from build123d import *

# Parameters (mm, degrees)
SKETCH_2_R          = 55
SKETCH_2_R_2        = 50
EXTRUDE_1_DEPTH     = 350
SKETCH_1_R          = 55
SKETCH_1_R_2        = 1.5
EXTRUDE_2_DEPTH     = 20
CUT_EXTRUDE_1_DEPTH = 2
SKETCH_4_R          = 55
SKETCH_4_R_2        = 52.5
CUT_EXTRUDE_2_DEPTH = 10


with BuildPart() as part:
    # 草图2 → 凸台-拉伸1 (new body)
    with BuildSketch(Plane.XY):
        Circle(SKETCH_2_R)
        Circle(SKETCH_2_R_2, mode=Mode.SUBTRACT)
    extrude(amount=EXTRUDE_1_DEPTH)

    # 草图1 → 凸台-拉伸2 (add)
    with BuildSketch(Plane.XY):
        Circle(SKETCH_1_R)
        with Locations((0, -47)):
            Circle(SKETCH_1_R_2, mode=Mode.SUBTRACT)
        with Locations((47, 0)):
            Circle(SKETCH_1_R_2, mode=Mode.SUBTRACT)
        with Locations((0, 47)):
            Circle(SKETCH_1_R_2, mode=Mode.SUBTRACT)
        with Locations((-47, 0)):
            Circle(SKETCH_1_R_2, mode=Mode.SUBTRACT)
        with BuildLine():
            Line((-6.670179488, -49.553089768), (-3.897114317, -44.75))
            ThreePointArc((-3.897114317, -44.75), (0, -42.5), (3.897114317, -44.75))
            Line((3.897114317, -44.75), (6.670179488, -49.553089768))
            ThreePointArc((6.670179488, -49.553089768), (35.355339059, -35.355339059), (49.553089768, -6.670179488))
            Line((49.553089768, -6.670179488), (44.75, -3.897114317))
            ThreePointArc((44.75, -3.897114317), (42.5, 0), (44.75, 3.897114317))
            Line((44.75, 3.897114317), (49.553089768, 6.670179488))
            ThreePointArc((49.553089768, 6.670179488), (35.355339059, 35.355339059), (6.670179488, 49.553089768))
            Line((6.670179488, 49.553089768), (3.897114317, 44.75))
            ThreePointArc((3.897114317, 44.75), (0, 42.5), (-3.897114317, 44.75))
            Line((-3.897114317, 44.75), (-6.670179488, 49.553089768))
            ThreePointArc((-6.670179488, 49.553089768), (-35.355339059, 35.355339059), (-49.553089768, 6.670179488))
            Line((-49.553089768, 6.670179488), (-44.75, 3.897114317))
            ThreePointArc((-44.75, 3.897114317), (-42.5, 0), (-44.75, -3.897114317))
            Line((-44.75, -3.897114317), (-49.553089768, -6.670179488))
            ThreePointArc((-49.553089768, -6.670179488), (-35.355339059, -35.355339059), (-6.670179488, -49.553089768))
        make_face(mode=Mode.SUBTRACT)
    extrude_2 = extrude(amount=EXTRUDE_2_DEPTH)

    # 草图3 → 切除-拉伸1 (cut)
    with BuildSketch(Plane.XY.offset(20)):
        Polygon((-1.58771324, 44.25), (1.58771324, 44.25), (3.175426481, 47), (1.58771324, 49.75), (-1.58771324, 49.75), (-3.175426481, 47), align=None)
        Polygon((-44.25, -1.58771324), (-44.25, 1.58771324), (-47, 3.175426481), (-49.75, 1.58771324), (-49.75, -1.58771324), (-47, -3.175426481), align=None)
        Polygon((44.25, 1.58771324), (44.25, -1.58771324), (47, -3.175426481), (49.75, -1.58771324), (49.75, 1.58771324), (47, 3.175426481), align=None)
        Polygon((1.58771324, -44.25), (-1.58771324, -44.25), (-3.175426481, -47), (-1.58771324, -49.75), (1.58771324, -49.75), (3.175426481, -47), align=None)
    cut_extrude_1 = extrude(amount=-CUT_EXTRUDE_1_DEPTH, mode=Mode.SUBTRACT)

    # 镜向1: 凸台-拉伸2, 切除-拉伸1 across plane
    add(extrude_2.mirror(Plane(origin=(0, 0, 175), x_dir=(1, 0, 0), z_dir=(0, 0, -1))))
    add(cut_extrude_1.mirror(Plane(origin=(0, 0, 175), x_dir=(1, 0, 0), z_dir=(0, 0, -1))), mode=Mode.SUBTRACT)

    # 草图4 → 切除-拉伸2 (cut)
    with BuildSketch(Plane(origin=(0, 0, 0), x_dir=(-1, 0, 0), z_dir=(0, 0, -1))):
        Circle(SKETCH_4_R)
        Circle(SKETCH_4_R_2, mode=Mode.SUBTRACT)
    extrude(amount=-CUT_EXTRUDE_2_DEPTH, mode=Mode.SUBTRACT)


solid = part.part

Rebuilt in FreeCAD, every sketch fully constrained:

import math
import FreeCAD as App
import Part
import Sketcher
Q = App.Units.Quantity


def add_polygon(sketch, points):
    """Adds a closed chain of lines whose ends are joined by coincident constraints."""
    first, n = sketch.GeometryCount, len(points)
    for a, b in zip(points, points[1:] + points[:1]):
        sketch.addGeometry(Part.LineSegment(App.Vector(*a, 0), App.Vector(*b, 0)), False)
    for i in range(n):
        sketch.addConstraint(Sketcher.Constraint("Coincident", first + i, 2, first + (i + 1) % n, 1))

doc = App.newDocument("Part")
params = doc.addObject("Spreadsheet::Sheet", "Params")
for row, (alias, value) in enumerate([
    ("sketch1_diameter", "110 mm"),
    ("sketch1_diameter2", "100 mm"),
    ("pad1_length", "350 mm"),
    ("sketch2_diameter", "110 mm"),
    ("sketch2_diameter2", "3 mm"),
    ("sketch2_radius", "50 mm"),
    ("sketch2_radius2", "4.5 mm"),
    ("pad2_length", "20 mm"),
    ("pocket1_length", "2 mm"),
    ("sketch4_diameter", "110 mm"),
    ("sketch4_diameter2", "105 mm"),
    ("pocket2_length", "10 mm"),
], start=1):
    params.set(f"A{row}", alias)
    params.set(f"B{row}", "=" + value)
    params.setAlias(f"B{row}", alias)

body = doc.addObject("PartDesign::Body", "Body")

sketch1 = body.newObject("Sketcher::SketchObject", "Sketch")
sketch1.AttachmentSupport = (doc.getObject("XY_Plane"), [""])
sketch1.MapMode = "FlatFace"
sketch1.addGeometry(Part.Circle(App.Vector(0, 0, 0), App.Vector(0, 0, 1), 55), False)
sketch1.addGeometry(Part.Circle(App.Vector(0, 0, 0), App.Vector(0, 0, 1), 50), False)
sketch1.addConstraint(Sketcher.Constraint("Coincident", 0, 3, -1, 1))
sketch1.addConstraint(Sketcher.Constraint("Coincident", 1, 3, -1, 1))
sketch1.addConstraint(Sketcher.Constraint("Diameter", 0, Q("110 mm")))
sketch1.addConstraint(Sketcher.Constraint("Diameter", 1, Q("100 mm")))
sketch1.setExpression("Constraints[2]", "Params.sketch1_diameter")
sketch1.setExpression("Constraints[3]", "Params.sketch1_diameter2")
pad1 = body.newObject("PartDesign::Pad", "Pad")
pad1.Profile = sketch1
pad1.setExpression("Length", "Params.pad1_length")

sketch2 = body.newObject("Sketcher::SketchObject", "Sketch001")
sketch2.AttachmentSupport = (doc.getObject("XY_Plane"), [""])
sketch2.MapMode = "FlatFace"
sketch2.addGeometry(Part.Circle(App.Vector(0, 0, 0), App.Vector(0, 0, 1), 55), False)
sketch2.addGeometry(Part.Circle(App.Vector(0, -47, 0), App.Vector(0, 0, 1), 1.5), False)
sketch2.addGeometry(Part.Circle(App.Vector(-47, 0, 0), App.Vector(0, 0, 1), 1.5), False)
sketch2.addGeometry(Part.LineSegment(App.Vector(-3.9, -44.8, 0), App.Vector(-6.7, -49.6, 0)), False)
sketch2.addGeometry(Part.ArcOfCircle(Part.Circle(App.Vector(0, 0, 0), App.Vector(0, 0, 1), 50), math.radians(-172), math.radians(-98)), False)
sketch2.addGeometry(Part.LineSegment(App.Vector(-49.6, -6.7, 0), App.Vector(-44.8, -3.9, 0)), False)
sketch2.addGeometry(Part.ArcOfCircle(Part.Circle(App.Vector(-47, 0, 0), App.Vector(0, 0, 1), 4.5), math.radians(-60), math.radians(60)), False)
sketch2.addGeometry(Part.LineSegment(App.Vector(-44.8, 3.9, 0), App.Vector(-49.6, 6.7, 0)), False)
sketch2.addGeometry(Part.ArcOfCircle(Part.Circle(App.Vector(0, 0, 0), App.Vector(0, 0, 1), 50), math.radians(98), math.radians(172)), False)
sketch2.addGeometry(Part.LineSegment(App.Vector(-6.7, 49.6, 0), App.Vector(-3.9, 44.8, 0)), False)
sketch2.addGeometry(Part.ArcOfCircle(Part.Circle(App.Vector(0, 47, 0), App.Vector(0, 0, 1), 4.5), math.radians(-150), math.radians(-30)), False)
sketch2.addGeometry(Part.LineSegment(App.Vector(3.9, 44.8, 0), App.Vector(6.7, 49.6, 0)), False)
sketch2.addGeometry(Part.ArcOfCircle(Part.Circle(App.Vector(0, 0, 0), App.Vector(0, 0, 1), 50), math.radians(8), math.radians(82)), False)
sketch2.addGeometry(Part.LineSegment(App.Vector(49.6, 6.7, 0), App.Vector(44.8, 3.9, 0)), False)
sketch2.addGeometry(Part.ArcOfCircle(Part.Circle(App.Vector(47, 0, 0), App.Vector(0, 0, 1), 4.5), math.radians(120), math.radians(240)), False)
sketch2.addGeometry(Part.LineSegment(App.Vector(44.8, -3.9, 0), App.Vector(49.6, -6.7, 0)), False)
sketch2.addGeometry(Part.ArcOfCircle(Part.Circle(App.Vector(0, 0, 0), App.Vector(0, 0, 1), 50), math.radians(-82), math.radians(-8)), False)
sketch2.addGeometry(Part.LineSegment(App.Vector(6.7, -49.6, 0), App.Vector(3.9, -44.8, 0)), False)
sketch2.addGeometry(Part.ArcOfCircle(Part.Circle(App.Vector(0, -47, 0), App.Vector(0, 0, 1), 4.5), math.radians(30), math.radians(150)), False)
sketch2.addGeometry(Part.Circle(App.Vector(47, 0, 0), App.Vector(0, 0, 1), 1.5), False)
sketch2.addGeometry(Part.Circle(App.Vector(0, 47, 0), App.Vector(0, 0, 1), 1.5), False)
sketch2.addConstraint(Sketcher.Constraint("Coincident", 3, 2, 4, 2))
sketch2.addConstraint(Sketcher.Constraint("Coincident", 4, 1, 5, 1))
sketch2.addConstraint(Sketcher.Constraint("Tangent", 5, 2, 6, 1))
sketch2.addConstraint(Sketcher.Constraint("Tangent", 6, 2, 7, 1))
sketch2.addConstraint(Sketcher.Constraint("Coincident", 7, 2, 8, 2))
sketch2.addConstraint(Sketcher.Constraint("Coincident", 8, 1, 9, 1))
sketch2.addConstraint(Sketcher.Constraint("Tangent", 9, 2, 10, 1))
sketch2.addConstraint(Sketcher.Constraint("Tangent", 10, 2, 11, 1))
sketch2.addConstraint(Sketcher.Constraint("Coincident", 11, 2, 12, 2))
sketch2.addConstraint(Sketcher.Constraint("Coincident", 12, 1, 13, 1))
sketch2.addConstraint(Sketcher.Constraint("Tangent", 13, 2, 14, 1))
sketch2.addConstraint(Sketcher.Constraint("Tangent", 14, 2, 15, 1))
sketch2.addConstraint(Sketcher.Constraint("Coincident", 15, 2, 16, 2))
sketch2.addConstraint(Sketcher.Constraint("Coincident", 16, 1, 17, 1))
sketch2.addConstraint(Sketcher.Constraint("Tangent", 17, 2, 18, 1))
sketch2.addConstraint(Sketcher.Constraint("Tangent", 18, 2, 3, 1))
sketch2.addConstraint(Sketcher.Constraint("Coincident", 0, 3, -1, 1))
sketch2.addConstraint(Sketcher.Constraint("Coincident", 4, 3, -1, 1))
sketch2.addConstraint(Sketcher.Constraint("Coincident", 8, 3, -1, 1))
sketch2.addConstraint(Sketcher.Constraint("Coincident", 12, 3, -1, 1))
sketch2.addConstraint(Sketcher.Constraint("Coincident", 16, 3, -1, 1))
sketch2.addConstraint(Sketcher.Constraint("Coincident", 6, 3, 2, 3))
sketch2.addConstraint(Sketcher.Constraint("Coincident", 18, 3, 1, 3))
sketch2.addConstraint(Sketcher.Constraint("Coincident", 19, 3, 14, 3))
sketch2.addConstraint(Sketcher.Constraint("Coincident", 20, 3, 10, 3))
sketch2.addConstraint(Sketcher.Constraint("Equal", 1, 2))
sketch2.addConstraint(Sketcher.Constraint("Equal", 4, 8))
sketch2.addConstraint(Sketcher.Constraint("Equal", 6, 10))
sketch2.addConstraint(Sketcher.Constraint("Equal", 8, 12))
sketch2.addConstraint(Sketcher.Constraint("Equal", 10, 14))
sketch2.addConstraint(Sketcher.Constraint("Equal", 12, 16))
sketch2.addConstraint(Sketcher.Constraint("Equal", 14, 18))
sketch2.addConstraint(Sketcher.Constraint("Equal", 2, 19))
sketch2.addConstraint(Sketcher.Constraint("Equal", 19, 20))
sketch2.addConstraint(Sketcher.Constraint("Symmetric", 1, 3, 10, 3, -1, 1))
sketch2.addConstraint(Sketcher.Constraint("Symmetric", 2, 3, 14, 3, -1, 1))
sketch2.addConstraint(Sketcher.Constraint("Symmetric", 9, 2, 10, 2, -2))
sketch2.addConstraint(Sketcher.Constraint("Symmetric", 6, 2, 13, 2, -2))
sketch2.addConstraint(Sketcher.Constraint("Perpendicular", 3, 7))
sketch2.addConstraint(Sketcher.Constraint("Perpendicular", 5, 9))
sketch2.addConstraint(Sketcher.Constraint("Perpendicular", 7, 11))
sketch2.addConstraint(Sketcher.Constraint("Perpendicular", 11, 15))
sketch2.addConstraint(Sketcher.Constraint("Perpendicular", 13, 17))
sketch2.addConstraint(Sketcher.Constraint("Equal", 3, 5))
sketch2.addConstraint(Sketcher.Constraint("Diameter", 0, Q("110 mm")))
sketch2.addConstraint(Sketcher.Constraint("Diameter", 1, Q("3 mm")))
sketch2.addConstraint(Sketcher.Constraint("Radius", 4, Q("50 mm")))
sketch2.addConstraint(Sketcher.Constraint("Radius", 6, Q("4.5 mm")))
sketch2.addConstraint(Sketcher.Constraint("Angle", 3, Q("-120 deg")))
sketch2.addConstraint(Sketcher.Constraint("DistanceY", 1, 3, -1, 1, Q("47 mm")))
sketch2.setExpression("Constraints[44]", "Params.sketch2_diameter")
sketch2.setExpression("Constraints[45]", "Params.sketch2_diameter2")
sketch2.setExpression("Constraints[46]", "Params.sketch2_radius")
sketch2.setExpression("Constraints[47]", "Params.sketch2_radius2")
pad2 = body.newObject("PartDesign::Pad", "Pad001")
pad2.Profile = sketch2
pad2.setExpression("Length", "Params.pad2_length")

sketch3 = body.newObject("Sketcher::SketchObject", "Sketch002")
sketch3.AttachmentSupport = (doc.getObject("XY_Plane"), [""])
sketch3.MapMode = "FlatFace"
sketch3.AttachmentOffset = App.Placement(App.Vector(0, 0, 20), App.Rotation())
add_polygon(sketch3, [(-1.6, 44.2), (1.6, 44.2), (3.2, 47), (1.6, 49.8), (-1.6, 49.8), (-3.2, 47)])
add_polygon(sketch3, [(-44.2, -1.6), (-44.2, 1.6), (-47, 3.2), (-49.8, 1.6), (-49.8, -1.6), (-47, -3.2)])
add_polygon(sketch3, [(44.2, 1.6), (44.2, -1.6), (47, -3.2), (49.8, -1.6), (49.8, 1.6), (47, 3.2)])
add_polygon(sketch3, [(1.6, -44.2), (-1.6, -44.2), (-3.2, -47), (-1.6, -49.8), (1.6, -49.8), (3.2, -47)])
sketch3.addConstraint(Sketcher.Constraint("Horizontal", 0))
sketch3.addConstraint(Sketcher.Constraint("Horizontal", 3))
sketch3.addConstraint(Sketcher.Constraint("Vertical", 6))
sketch3.addConstraint(Sketcher.Constraint("Vertical", 9))
sketch3.addConstraint(Sketcher.Constraint("Vertical", 12))
sketch3.addConstraint(Sketcher.Constraint("Vertical", 15))
sketch3.addConstraint(Sketcher.Constraint("Horizontal", 18))
sketch3.addConstraint(Sketcher.Constraint("Horizontal", 21))
sketch3.addConstraint(Sketcher.Constraint("Symmetric", 6, 2, 12, 2, -1, 1))
sketch3.addConstraint(Sketcher.Constraint("Symmetric", 7, 2, 13, 2, -1, 1))
sketch3.addConstraint(Sketcher.Constraint("Symmetric", 8, 2, 14, 2, -1, 1))
sketch3.addConstraint(Sketcher.Constraint("Symmetric", 10, 2, 16, 2, -1, 1))
sketch3.addConstraint(Sketcher.Constraint("Symmetric", 0, 2, 18, 2, -1, 1))
sketch3.addConstraint(Sketcher.Constraint("Symmetric", 1, 2, 19, 2, -1, 1))
sketch3.addConstraint(Sketcher.Constraint("Symmetric", 2, 2, 20, 2, -1, 1))
sketch3.addConstraint(Sketcher.Constraint("Symmetric", 4, 2, 22, 2, -1, 1))
sketch3.addConstraint(Sketcher.Constraint("Symmetric", 1, 2, 4, 2, -2))
sketch3.addConstraint(Sketcher.Constraint("Symmetric", 10, 2, 13, 2, -2))
sketch3.addConstraint(Sketcher.Constraint("Parallel", 1, 4))
sketch3.addConstraint(Sketcher.Constraint("Parallel", 2, 5))
sketch3.addConstraint(Sketcher.Constraint("Perpendicular", 4, 7))
sketch3.addConstraint(Sketcher.Constraint("Perpendicular", 5, 8))
sketch3.addConstraint(Sketcher.Constraint("Parallel", 7, 10))
sketch3.addConstraint(Sketcher.Constraint("Parallel", 8, 11))
sketch3.addConstraint(Sketcher.Constraint("Parallel", 13, 16))
sketch3.addConstraint(Sketcher.Constraint("Parallel", 14, 17))
sketch3.addConstraint(Sketcher.Constraint("Parallel", 19, 22))
sketch3.addConstraint(Sketcher.Constraint("Parallel", 20, 23))
sketch3.addConstraint(Sketcher.Constraint("Horizontal", 6, 2, 8, 2))
sketch3.addConstraint(Sketcher.Constraint("Horizontal", 9, 2, 11, 2))
sketch3.addConstraint(Sketcher.Constraint("Vertical", 0, 2, 2, 2))
sketch3.addConstraint(Sketcher.Constraint("Equal", 21, 6))
sketch3.addConstraint(Sketcher.Constraint("Equal", 5, 7))
sketch3.addConstraint(Sketcher.Constraint("Angle", 1, Q("60 deg")))
sketch3.addConstraint(Sketcher.Constraint("DistanceY", -1, 1, 1, 2, Q("47 mm")))
sketch3.addConstraint(Sketcher.Constraint("DistanceX", 7, 2, -1, 1, Q("47 mm")))
sketch3.addConstraint(Sketcher.Constraint("DistanceY", 0, 2, 2, 2, Q("5.5 mm")))
sketch3.addConstraint(Sketcher.Constraint("DistanceX", 0, 1, 0, 2, Q("3.175426 mm")))
pocket1 = body.newObject("PartDesign::Pocket", "Pocket")
pocket1.Profile = sketch3
pocket1.setExpression("Length", "Params.pocket1_length")
doc.recompute()

datumplane = body.newObject("PartDesign::Plane", "DatumPlane")
datumplane.AttachmentSupport = (doc.getObject("XY_Plane"), [""])
datumplane.MapMode = "FlatFace"
datumplane.AttachmentOffset = App.Placement(App.Vector(0, 0, 175), App.Rotation())
mirrored = body.newObject("PartDesign::Mirrored", "Mirrored")
mirrored.Originals = [pad2, pocket1]
mirrored.MirrorPlane = (datumplane, [""])
body.Tip = mirrored

sketch4 = body.newObject("Sketcher::SketchObject", "Sketch003")
sketch4.AttachmentSupport = (doc.getObject("XY_Plane"), [""])
sketch4.MapMode = "FlatFace"
sketch4.addGeometry(Part.Circle(App.Vector(0, 0, 0), App.Vector(0, 0, 1), 55), False)
sketch4.addGeometry(Part.Circle(App.Vector(0, 0, 0), App.Vector(0, 0, 1), 52), False)
sketch4.addConstraint(Sketcher.Constraint("Coincident", 0, 3, -1, 1))
sketch4.addConstraint(Sketcher.Constraint("Coincident", 1, 3, -1, 1))
sketch4.addConstraint(Sketcher.Constraint("Diameter", 0, Q("110 mm")))
sketch4.addConstraint(Sketcher.Constraint("Diameter", 1, Q("105 mm")))
sketch4.setExpression("Constraints[2]", "Params.sketch4_diameter")
sketch4.setExpression("Constraints[3]", "Params.sketch4_diameter2")
pocket2 = body.newObject("PartDesign::Pocket", "Pocket001")
pocket2.Profile = sketch4
pocket2.setExpression("Length", "Params.pocket2_length")
pocket2.Reversed = True

doc.recompute()
